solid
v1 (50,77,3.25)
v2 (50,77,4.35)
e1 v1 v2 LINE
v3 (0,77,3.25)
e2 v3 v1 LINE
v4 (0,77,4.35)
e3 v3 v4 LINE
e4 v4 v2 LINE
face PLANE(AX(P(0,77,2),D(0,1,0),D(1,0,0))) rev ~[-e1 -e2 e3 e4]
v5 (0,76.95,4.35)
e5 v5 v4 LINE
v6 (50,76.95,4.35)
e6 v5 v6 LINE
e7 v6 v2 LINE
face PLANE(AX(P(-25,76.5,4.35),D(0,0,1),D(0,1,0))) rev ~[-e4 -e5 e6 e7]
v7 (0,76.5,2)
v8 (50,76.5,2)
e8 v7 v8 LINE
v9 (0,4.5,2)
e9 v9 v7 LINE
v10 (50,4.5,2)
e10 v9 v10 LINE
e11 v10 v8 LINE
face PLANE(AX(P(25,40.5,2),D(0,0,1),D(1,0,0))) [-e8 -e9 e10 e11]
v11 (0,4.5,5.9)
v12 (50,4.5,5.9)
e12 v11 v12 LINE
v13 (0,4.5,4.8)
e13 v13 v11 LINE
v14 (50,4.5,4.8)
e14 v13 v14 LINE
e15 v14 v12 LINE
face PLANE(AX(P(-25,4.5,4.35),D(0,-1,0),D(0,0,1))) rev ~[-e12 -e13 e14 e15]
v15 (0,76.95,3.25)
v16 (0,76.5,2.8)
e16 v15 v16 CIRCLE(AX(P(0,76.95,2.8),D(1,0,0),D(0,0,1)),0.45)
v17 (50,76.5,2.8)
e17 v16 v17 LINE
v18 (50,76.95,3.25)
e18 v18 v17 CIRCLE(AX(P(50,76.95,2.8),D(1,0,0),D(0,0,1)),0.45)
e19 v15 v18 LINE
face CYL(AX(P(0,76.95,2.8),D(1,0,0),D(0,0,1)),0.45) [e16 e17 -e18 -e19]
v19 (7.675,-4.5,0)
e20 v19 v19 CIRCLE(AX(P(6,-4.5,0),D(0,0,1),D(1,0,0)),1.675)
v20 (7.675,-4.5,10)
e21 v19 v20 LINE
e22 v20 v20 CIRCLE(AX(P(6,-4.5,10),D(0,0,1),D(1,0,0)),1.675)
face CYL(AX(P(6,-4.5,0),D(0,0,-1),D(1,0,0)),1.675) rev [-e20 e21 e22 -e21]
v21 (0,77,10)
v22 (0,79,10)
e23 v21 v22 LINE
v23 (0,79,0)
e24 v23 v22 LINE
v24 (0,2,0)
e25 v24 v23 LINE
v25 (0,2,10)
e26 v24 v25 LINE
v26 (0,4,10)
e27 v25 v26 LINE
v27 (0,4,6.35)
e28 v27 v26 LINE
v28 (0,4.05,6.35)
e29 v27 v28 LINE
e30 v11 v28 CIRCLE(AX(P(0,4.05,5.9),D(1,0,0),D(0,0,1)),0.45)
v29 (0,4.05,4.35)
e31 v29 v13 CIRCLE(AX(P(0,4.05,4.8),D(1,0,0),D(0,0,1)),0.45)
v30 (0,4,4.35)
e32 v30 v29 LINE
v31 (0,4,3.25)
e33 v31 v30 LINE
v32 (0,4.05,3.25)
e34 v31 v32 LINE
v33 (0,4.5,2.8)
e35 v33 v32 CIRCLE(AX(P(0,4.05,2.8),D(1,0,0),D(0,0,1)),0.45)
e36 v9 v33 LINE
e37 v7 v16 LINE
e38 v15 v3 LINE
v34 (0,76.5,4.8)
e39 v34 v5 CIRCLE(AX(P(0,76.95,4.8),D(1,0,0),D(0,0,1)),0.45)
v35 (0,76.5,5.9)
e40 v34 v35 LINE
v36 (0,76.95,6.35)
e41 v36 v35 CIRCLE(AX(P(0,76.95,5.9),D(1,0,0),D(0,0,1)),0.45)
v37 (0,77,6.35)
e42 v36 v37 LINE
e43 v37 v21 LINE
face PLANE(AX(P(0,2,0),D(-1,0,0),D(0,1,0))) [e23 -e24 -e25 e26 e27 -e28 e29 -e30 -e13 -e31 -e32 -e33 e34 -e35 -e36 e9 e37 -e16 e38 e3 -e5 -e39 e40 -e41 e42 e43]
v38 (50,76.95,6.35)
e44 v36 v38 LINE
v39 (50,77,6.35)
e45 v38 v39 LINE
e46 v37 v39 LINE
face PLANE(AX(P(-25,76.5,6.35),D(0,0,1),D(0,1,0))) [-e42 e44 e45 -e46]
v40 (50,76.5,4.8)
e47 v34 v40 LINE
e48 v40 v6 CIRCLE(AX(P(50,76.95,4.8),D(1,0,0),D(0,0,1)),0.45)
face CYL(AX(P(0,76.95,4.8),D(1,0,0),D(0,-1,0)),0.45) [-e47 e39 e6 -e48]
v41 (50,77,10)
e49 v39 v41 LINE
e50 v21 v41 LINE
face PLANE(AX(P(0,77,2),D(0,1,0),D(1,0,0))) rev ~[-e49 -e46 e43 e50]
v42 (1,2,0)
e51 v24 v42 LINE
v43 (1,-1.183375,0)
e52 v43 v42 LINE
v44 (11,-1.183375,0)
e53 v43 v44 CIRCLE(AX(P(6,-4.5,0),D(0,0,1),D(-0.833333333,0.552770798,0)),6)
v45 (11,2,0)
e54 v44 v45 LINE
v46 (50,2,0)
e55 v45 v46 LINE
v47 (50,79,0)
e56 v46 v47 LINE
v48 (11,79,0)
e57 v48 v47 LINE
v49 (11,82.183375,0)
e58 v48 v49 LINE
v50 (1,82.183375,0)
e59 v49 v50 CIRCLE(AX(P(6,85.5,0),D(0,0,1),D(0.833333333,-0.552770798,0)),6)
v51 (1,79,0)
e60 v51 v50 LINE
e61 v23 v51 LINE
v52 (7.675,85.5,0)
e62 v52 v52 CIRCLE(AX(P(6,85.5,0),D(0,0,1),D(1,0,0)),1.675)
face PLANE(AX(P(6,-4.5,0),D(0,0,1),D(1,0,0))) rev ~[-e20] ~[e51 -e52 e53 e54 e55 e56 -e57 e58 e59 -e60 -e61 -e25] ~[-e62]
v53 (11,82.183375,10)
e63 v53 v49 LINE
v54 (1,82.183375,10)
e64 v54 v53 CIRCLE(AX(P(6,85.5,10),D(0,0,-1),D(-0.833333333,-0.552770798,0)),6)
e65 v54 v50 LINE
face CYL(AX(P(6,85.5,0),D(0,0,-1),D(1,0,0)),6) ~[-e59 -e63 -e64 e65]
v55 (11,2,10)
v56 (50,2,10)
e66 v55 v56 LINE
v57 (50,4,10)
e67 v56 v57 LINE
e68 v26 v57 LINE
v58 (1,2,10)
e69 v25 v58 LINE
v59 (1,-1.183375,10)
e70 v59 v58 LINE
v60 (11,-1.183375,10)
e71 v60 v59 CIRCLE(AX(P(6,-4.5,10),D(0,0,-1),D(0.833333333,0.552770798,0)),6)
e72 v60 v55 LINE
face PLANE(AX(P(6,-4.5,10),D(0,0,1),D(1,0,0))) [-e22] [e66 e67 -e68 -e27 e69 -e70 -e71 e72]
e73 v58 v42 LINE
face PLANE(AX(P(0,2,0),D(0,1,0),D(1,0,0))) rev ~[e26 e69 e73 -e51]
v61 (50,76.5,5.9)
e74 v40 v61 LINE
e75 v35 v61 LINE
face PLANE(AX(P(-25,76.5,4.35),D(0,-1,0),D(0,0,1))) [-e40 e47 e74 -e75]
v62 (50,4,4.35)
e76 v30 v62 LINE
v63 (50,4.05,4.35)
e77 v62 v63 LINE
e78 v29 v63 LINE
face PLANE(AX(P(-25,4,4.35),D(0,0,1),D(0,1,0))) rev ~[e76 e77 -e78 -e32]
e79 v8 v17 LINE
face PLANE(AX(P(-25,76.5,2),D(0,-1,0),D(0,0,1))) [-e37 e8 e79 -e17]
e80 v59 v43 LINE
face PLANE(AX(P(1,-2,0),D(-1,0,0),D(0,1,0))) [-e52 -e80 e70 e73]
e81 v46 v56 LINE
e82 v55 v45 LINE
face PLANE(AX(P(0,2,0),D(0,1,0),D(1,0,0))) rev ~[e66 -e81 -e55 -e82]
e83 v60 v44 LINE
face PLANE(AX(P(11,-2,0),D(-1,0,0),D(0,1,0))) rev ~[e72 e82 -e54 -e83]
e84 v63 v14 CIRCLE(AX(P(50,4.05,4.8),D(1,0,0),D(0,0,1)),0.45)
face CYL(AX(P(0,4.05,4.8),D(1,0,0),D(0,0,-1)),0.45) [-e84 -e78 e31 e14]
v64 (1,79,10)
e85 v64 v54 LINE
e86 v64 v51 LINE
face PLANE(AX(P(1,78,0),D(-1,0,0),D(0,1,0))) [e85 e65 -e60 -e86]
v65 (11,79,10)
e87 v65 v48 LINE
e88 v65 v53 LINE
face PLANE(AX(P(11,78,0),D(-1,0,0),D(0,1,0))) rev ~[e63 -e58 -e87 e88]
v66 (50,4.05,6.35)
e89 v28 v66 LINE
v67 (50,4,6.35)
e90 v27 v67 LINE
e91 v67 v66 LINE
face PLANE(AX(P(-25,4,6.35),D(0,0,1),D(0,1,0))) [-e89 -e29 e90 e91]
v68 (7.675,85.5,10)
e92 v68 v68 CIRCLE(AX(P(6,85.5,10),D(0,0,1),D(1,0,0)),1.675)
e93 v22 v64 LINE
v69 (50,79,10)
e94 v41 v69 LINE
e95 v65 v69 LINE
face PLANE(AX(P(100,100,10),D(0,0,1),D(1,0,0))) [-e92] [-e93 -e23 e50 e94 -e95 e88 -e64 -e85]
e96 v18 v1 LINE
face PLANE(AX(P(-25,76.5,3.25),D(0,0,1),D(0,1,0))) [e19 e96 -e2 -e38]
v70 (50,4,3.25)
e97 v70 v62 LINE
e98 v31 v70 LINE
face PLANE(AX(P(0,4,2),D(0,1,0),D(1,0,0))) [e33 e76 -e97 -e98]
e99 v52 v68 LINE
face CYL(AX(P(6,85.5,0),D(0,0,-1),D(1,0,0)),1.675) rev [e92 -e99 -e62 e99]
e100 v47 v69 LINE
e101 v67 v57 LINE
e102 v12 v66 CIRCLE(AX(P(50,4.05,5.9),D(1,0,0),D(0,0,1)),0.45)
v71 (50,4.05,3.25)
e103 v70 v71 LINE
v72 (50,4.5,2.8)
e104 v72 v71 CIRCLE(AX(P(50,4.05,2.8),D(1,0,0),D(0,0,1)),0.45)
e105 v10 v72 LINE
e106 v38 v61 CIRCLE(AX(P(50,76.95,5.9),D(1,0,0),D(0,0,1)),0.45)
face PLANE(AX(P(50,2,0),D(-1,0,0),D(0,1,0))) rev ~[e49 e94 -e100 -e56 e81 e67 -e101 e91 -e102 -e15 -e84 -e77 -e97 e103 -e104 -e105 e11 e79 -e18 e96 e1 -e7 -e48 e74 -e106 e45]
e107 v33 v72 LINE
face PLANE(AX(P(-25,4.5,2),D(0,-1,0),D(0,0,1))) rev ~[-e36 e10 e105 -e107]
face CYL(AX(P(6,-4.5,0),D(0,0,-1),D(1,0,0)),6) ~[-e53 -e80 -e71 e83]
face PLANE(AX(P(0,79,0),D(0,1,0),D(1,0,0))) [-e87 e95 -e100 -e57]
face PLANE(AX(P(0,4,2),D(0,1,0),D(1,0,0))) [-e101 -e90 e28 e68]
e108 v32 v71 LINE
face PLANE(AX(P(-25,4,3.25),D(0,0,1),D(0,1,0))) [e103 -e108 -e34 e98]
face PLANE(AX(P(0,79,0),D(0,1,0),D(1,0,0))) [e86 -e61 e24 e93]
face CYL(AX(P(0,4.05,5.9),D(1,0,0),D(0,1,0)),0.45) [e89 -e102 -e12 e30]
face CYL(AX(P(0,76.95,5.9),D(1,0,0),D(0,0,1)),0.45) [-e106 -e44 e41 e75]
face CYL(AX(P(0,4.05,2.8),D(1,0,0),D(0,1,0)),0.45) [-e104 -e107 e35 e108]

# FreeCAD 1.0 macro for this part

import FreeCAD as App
import Part
import Sketcher


def edges_at(feature, points):
    """Names of the edges that pass closest to the given points."""
    edges = feature.Shape.Edges
    near = lambda p: min(range(len(edges)), key=lambda i: edges[i].distToShape(Part.Vertex(*p))[0])
    return sorted({f"Edge{near(p) + 1}" for p in points})


def add_polygon(sketch, points):
    """Adds a closed chain of lines whose ends are joined by coincident constraints."""
    first, n = sketch.GeometryCount, len(points)
    for a, b in zip(points, points[1:] + points[:1]):
        sketch.addGeometry(Part.LineSegment(App.Vector(*a, 0), App.Vector(*b, 0)), False)
    for i in range(n):
        sketch.addConstraint(Sketcher.Constraint("Coincident", first + i, 2, first + (i + 1) % n, 1))

doc = App.newDocument("Part")
params = doc.addObject("Spreadsheet::Sheet", "Params")
for row, (alias, value) in enumerate([
    ("sketch1_width", "200 mm"),
    ("pad1_length", "20 mm"),
    ("sketch2_diameter", "12 mm"),
    ("sketch2_diameter2", "3.35 mm"),
    ("pad2_length", "10 mm"),
    ("sketch3_width", "73 mm"),
    ("sketch3_height", "18.85 mm"),
    ("pad3_length", "10 mm"),
    ("sketch4_height", "2 mm"),
    ("sketch4_width", "0.5 mm"),
    ("sketch4_height2", "1.25 mm"),
    ("pad4_length", "100 mm"),
    ("sketch5_width", "50 mm"),
    ("sketch5_height", "73 mm"),
    ("pad5_length", "18.85 mm"),
    ("sketch6_width", "50 mm"),
    ("sketch6_height", "77 mm"),
    ("pad6_length", "22.85 mm"),
    ("fillet_radius", "0.45 mm"),
    ("fillet2_radius", "1 mm"),
    ("sketch7_width", "10 mm"),
    ("sketch7_height", "5 mm"),
    ("pad7_length", "10 mm"),
    ("sketch8_diameter", "12 mm"),
    ("sketch8_diameter2", "3.35 mm"),
    ("pad8_length", "10 mm"),
    ("sketch9_width", "10 mm"),
    ("sketch9_height", "5 mm"),
    ("pad9_length", "10 mm"),
], start=1):
    params.set(f"A{row}", alias)
    params.set(f"B{row}", "=" + value)
    params.setAlias(f"B{row}", alias)

body = doc.addObject("PartDesign::Body", "Body")

# Sketch on XY plane
sketch1 = body.newObject("Sketcher::SketchObject", "Sketch")
sketch1.AttachmentSupport = (doc.getObject("XY_Plane"), [""])
sketch1.MapMode = "FlatFace"
sketch1.AttachmentOffset = App.Placement(App.Vector(0, 0, 10), App.Rotation())
add_polygon(sketch1, [(0, 200), (0, 0), (200, 0), (200, 200)])  # lines 0-3
sketch1.addConstraint(Sketcher.Constraint("Vertical", 0))
sketch1.addConstraint(Sketcher.Constraint("Horizontal", 1))
sketch1.addConstraint(Sketcher.Constraint("Vertical", 2))
sketch1.addConstraint(Sketcher.Constraint("Horizontal", 3))
sketch1.addConstraint(Sketcher.Constraint("Coincident", 0, 2, -1, 1))
sketch1.addConstraint(Sketcher.Constraint("Equal", 3, 0))
sketch1.addConstraint(Sketcher.Constraint("DistanceX", 1, 1, 1, 2, 200.0))
sketch1.setExpression("Constraints[10]", "Params.sketch1_width")
pad1 = body.newObject("PartDesign::Pad", "Pad")
pad1.Profile = sketch1
pad1.setExpression("Length", "Params.pad1_length")
body2 = doc.addObject("PartDesign::Body", "Body001")

# Sketch on XY plane
sketch2 = body2.newObject("Sketcher::SketchObject", "Sketch001")
sketch2.AttachmentSupport = (doc.getObject("XY_Plane001"), [""])
sketch2.MapMode = "FlatFace"
sketch2.addGeometry(Part.Circle(App.Vector(6, -4.5, 0), App.Vector(0, 0, 1), 6), False)
sketch2.addGeometry(Part.Circle(App.Vector(6, -4.5, 0), App.Vector(0, 0, 1), 1.7), False)
sketch2.addConstraint(Sketcher.Constraint("Coincident", 1, 3, 0, 3))
sketch2.addConstraint(Sketcher.Constraint("Diameter", 0, 12.0))
sketch2.addConstraint(Sketcher.Constraint("Diameter", 1, 3.35))
sketch2.addConstraint(Sketcher.Constraint("DistanceX", -1, 1, 0, 3, 6.0))
sketch2.addConstraint(Sketcher.Constraint("DistanceY", 0, 3, -1, 1, 4.5))
sketch2.setExpression("Constraints[1]", "Params.sketch2_diameter")
sketch2.setExpression("Constraints[2]", "Params.sketch2_diameter2")
pad2 = body2.newObject("PartDesign::Pad", "Pad001")
pad2.Profile = sketch2
pad2.setExpression("Length", "Params.pad2_length")
body3 = doc.addObject("PartDesign::Body", "Body002")

# Sketch on YZ plane
sketch3 = body3.newObject("Sketcher::SketchObject", "Sketch002")
sketch3.AttachmentSupport = (doc.getObject("YZ_Plane002"), [""])
sketch3.MapMode = "FlatFace"
add_polygon(sketch3, [(0, 19), (0, 0), (73, 0), (73, 19)])  # lines 0-3
sketch3.addConstraint(Sketcher.Constraint("Vertical", 0))
sketch3.addConstraint(Sketcher.Constraint("Horizontal", 1))
sketch3.addConstraint(Sketcher.Constraint("Vertical", 2))
sketch3.addConstraint(Sketcher.Constraint("Horizontal", 3))
sketch3.addConstraint(Sketcher.Constraint("Coincident", 0, 2, -1, 1))
sketch3.addConstraint(Sketcher.Constraint("DistanceX", 1, 1, 1, 2, 73.0))
sketch3.addConstraint(Sketcher.Constraint("DistanceY", 0, 2, 0, 1, 18.85))
sketch3.setExpression("Constraints[9]", "Params.sketch3_width")
sketch3.setExpression("Constraints[10]", "Params.sketch3_height")
pad3 = body3.newObject("PartDesign::Pad", "Pad002")
pad3.Profile = sketch3
pad3.setExpression("Length", "Params.pad3_length")

# Sketch on YZ plane
sketch4 = body3.newObject("Sketcher::SketchObject", "Sketch003")
sketch4.AttachmentSupport = (doc.getObject("YZ_Plane002"), [""])
sketch4.MapMode = "FlatFace"
add_polygon(sketch4, [(0, 1.2), (0, 0), (0.5, 0), (0.5, 1.2)])  # lines 0-3
add_polygon(sketch4, [(72.5, 1.2), (72.5, 0), (73, 0), (73, 1.2)])  # lines 4-7
add_polygon(sketch4, [(0, 4.3), (0, 2.4), (0.5, 2.4), (0.5, 4.3)])  # lines 8-11
add_polygon(sketch4, [(72.5, 4.3), (72.5, 2.4), (73, 2.4), (73, 4.3)])  # lines 12-15
sketch4.addConstraint(Sketcher.Constraint("Vertical", 0))
sketch4.addConstraint(Sketcher.Constraint("Horizontal", 1))
sketch4.addConstraint(Sketcher.Constraint("Vertical", 2))
sketch4.addConstraint(Sketcher.Constraint("Horizontal", 3))
sketch4.addConstraint(Sketcher.Constraint("Vertical", 4))
sketch4.addConstraint(Sketcher.Constraint("Horizontal", 5))
sketch4.addConstraint(Sketcher.Constraint("Vertical", 6))
sketch4.addConstraint(Sketcher.Constraint("Horizontal", 7))
sketch4.addConstraint(Sketcher.Constraint("Vertical", 8))
sketch4.addConstraint(Sketcher.Constraint("Horizontal", 9))
sketch4.addConstraint(Sketcher.Constraint("Vertical", 10))
sketch4.addConstraint(Sketcher.Constraint("Horizontal", 11))
sketch4.addConstraint(Sketcher.Constraint("Vertical", 12))
sketch4.addConstraint(Sketcher.Constraint("Horizontal", 13))
sketch4.addConstraint(Sketcher.Constraint("Vertical", 14))
sketch4.addConstraint(Sketcher.Constraint("Horizontal", 15))
sketch4.addConstraint(Sketcher.Constraint("Coincident", 0, 2, -1, 1))
sketch4.addConstraint(Sketcher.Constraint("PointOnObject", 4, 2, -1))
sketch4.addConstraint(Sketcher.Constraint("PointOnObject", 8, 2, -2))
sketch4.addConstraint(Sketcher.Constraint("Horizontal", 3, 2, 6, 2))
sketch4.addConstraint(Sketcher.Constraint("Horizontal", 9, 2, 12, 2))
sketch4.addConstraint(Sketcher.Constraint("Horizontal", 11, 2, 14, 2))
sketch4.addConstraint(Sketcher.Constraint("Vertical", 2, 2, 9, 2))
sketch4.addConstraint(Sketcher.Constraint("Vertical", 7, 2, 12, 2))
sketch4.addConstraint(Sketcher.Constraint("Vertical", 6, 2, 13, 2))
sketch4.addConstraint(Sketcher.Constraint("Equal", 3, 5))
sketch4.addConstraint(Sketcher.Constraint("DistanceY", 8, 2, 8, 1, 2.0))
sketch4.addConstraint(Sketcher.Constraint("DistanceX", 1, 1, 1, 2, 0.5))
sketch4.addConstraint(Sketcher.Constraint("DistanceX", -1, 1, 5, 2, 73.0))
sketch4.addConstraint(Sketcher.Constraint("DistanceY", 0, 2, 0, 1, 1.25))
sketch4.addConstraint(Sketcher.Constraint("DistanceY", 3, 2, 8, 2, 1.1))
sketch4.setExpression("Constraints[42]", "Params.sketch4_height")
sketch4.setExpression("Constraints[43]", "Params.sketch4_width")
sketch4.setExpression("Constraints[45]", "Params.sketch4_height2")
pad4 = body3.newObject("PartDesign::Pad", "Pad003")
pad4.Profile = sketch4
pad4.setExpression("Length", "Params.pad4_length")
body4 = doc.addObject("PartDesign::Body", "Body003")
doc.recompute()

body3.Placement = App.Placement(App.Vector(-25, 0, 0), App.Rotation(App.Vector(0, 0, 1), 0))
boolean = body4.newObject("PartDesign::Boolean", "Boolean")
boolean.Type = "Fuse"
boolean.addObjects([body3])
body5 = doc.addObject("PartDesign::Body", "Body004")

# Sketch on XY plane
sketch5 = body5.newObject("Sketcher::SketchObject", "Sketch004")
sketch5.AttachmentSupport = (doc.getObject("XY_Plane004"), [""])
sketch5.MapMode = "FlatFace"
add_polygon(sketch5, [(0, 73), (0, 0), (50, 0), (50, 73)])  # lines 0-3
sketch5.addConstraint(Sketcher.Constraint("Vertical", 0))
sketch5.addConstraint(Sketcher.Constraint("Horizontal", 1))
sketch5.addConstraint(Sketcher.Constraint("Vertical", 2))
sketch5.addConstraint(Sketcher.Constraint("Horizontal", 3))
sketch5.addConstraint(Sketcher.Constraint("Coincident", 0, 2, -1, 1))
sketch5.addConstraint(Sketcher.Constraint("DistanceX", 1, 1, 1, 2, 50.0))
sketch5.addConstraint(Sketcher.Constraint("DistanceY", 0, 2, 0, 1, 73.0))
sketch5.setExpression("Constraints[9]", "Params.sketch5_width")
sketch5.setExpression("Constraints[10]", "Params.sketch5_height")
pad5 = body5.newObject("PartDesign::Pad", "Pad004")
pad5.Profile = sketch5
pad5.setExpression("Length", "Params.pad5_length")
doc.recompute()

boolean2 = body5.newObject("PartDesign::Boolean", "Boolean001")
boolean2.Type = "Cut"
boolean2.addObjects([body4])
body6 = doc.addObject("PartDesign::Body", "Body005")
doc.recompute()

body5.Placement = App.Placement(App.Vector(0, 2, 2), App.Rotation(App.Vector(0, 0, 1), 0))
boolean3 = body6.newObject("PartDesign::Boolean", "Boolean002")
boolean3.Type = "Fuse"
boolean3.addObjects([body5])
body7 = doc.addObject("PartDesign::Body", "Body006")

# Sketch on XY plane
sketch6 = body7.newObject("Sketcher::SketchObject", "Sketch005")
sketch6.AttachmentSupport = (doc.getObject("XY_Plane006"), [""])
sketch6.MapMode = "FlatFace"
add_polygon(sketch6, [(0, 77), (0, 0), (50, 0), (50, 77)])  # lines 0-3
sketch6.addConstraint(Sketcher.Constraint("Vertical", 0))
sketch6.addConstraint(Sketcher.Constraint("Horizontal", 1))
sketch6.addConstraint(Sketcher.Constraint("Vertical", 2))
sketch6.addConstraint(Sketcher.Constraint("Horizontal", 3))
sketch6.addConstraint(Sketcher.Constraint("Coincident", 0, 2, -1, 1))
sketch6.addConstraint(Sketcher.Constraint("DistanceX", 1, 1, 1, 2, 50.0))
sketch6.addConstraint(Sketcher.Constraint("DistanceY", 0, 2, 0, 1, 77.0))
sketch6.setExpression("Constraints[9]", "Params.sketch6_width")
sketch6.setExpression("Constraints[10]", "Params.sketch6_height")
pad6 = body7.newObject("PartDesign::Pad", "Pad005")
pad6.Profile = sketch6
pad6.setExpression("Length", "Params.pad6_length")
doc.recompute()

boolean4 = body7.newObject("PartDesign::Boolean", "Boolean003")
boolean4.Type = "Cut"
boolean4.addObjects([body6])
doc.recompute()

fillet = body7.newObject("PartDesign::Fillet", "Fillet")
fillet.Base = (boolean4, edges_at(boolean4, [
    (25, 2.5, 3.25),
    (25, 74.5, 3.25),
    (25, 74.5, 4.35),
    (25, 74.5, 6.35),
    (25, 2.5, 6.35),
    (25, 2.5, 4.35),
]))
fillet.setExpression("Radius", "Params.fillet_radius")
body8 = doc.addObject("PartDesign::Body", "Body007")
body8.AllowCompound = True
doc.recompute()

body7.Placement = App.Placement(App.Vector(0, 2, 0), App.Rotation(App.Vector(0, 0, 1), 0))
boolean5 = body8.newObject("PartDesign::Boolean", "Boolean004")
boolean5.Type = "Fuse"
boolean5.addObjects([body7])
doc.recompute()

fillet2 = body8.newObject("PartDesign::Fillet", "Fillet001")
fillet2.Base = (boolean5, edges_at(boolean5, [(25, 79, 22.85), (25, 2, 22.85)]))
fillet2.setExpression("Radius", "Params.fillet2_radius")
doc.recompute()

boolean6 = body8.newObject("PartDesign::Boolean", "Boolean005")
boolean6.Type = "Fuse"
boolean6.addObjects([body2])
doc.recompute()

boolean7 = body8.newObject("PartDesign::Boolean", "Boolean006")
boolean7.Type = "Cut"
boolean7.addObjects([body])
body9 = doc.addObject("PartDesign::Body", "Body008")

# Sketch on XY plane
sketch7 = body9.newObject("Sketcher::SketchObject", "Sketch006")
sketch7.AttachmentSupport = (doc.getObject("XY_Plane008"), [""])
sketch7.MapMode = "FlatFace"
add_polygon(sketch7, [(1, 3), (1, -2), (11, -2), (11, 3)])  # lines 0-3
sketch7.addConstraint(Sketcher.Constraint("Vertical", 0))
sketch7.addConstraint(Sketcher.Constraint("Horizontal", 1))
sketch7.addConstraint(Sketcher.Constraint("Vertical", 2))
sketch7.addConstraint(Sketcher.Constraint("Horizontal", 3))
sketch7.addConstraint(Sketcher.Constraint("DistanceX", 1, 1, 1, 2, 10.0))
sketch7.addConstraint(Sketcher.Constraint("DistanceY", 0, 2, 0, 1, 5.0))
sketch7.addConstraint(Sketcher.Constraint("DistanceX", -1, 1, 0, 2, 1.0))
sketch7.addConstraint(Sketcher.Constraint("DistanceY", 0, 2, -1, 1, 2.0))
sketch7.setExpression("Constraints[8]", "Params.sketch7_width")
sketch7.setExpression("Constraints[9]", "Params.sketch7_height")
pad7 = body9.newObject("PartDesign::Pad", "Pad006")
pad7.Profile = sketch7
pad7.setExpression("Length", "Params.pad7_length")
doc.recompute()

boolean8 = body9.newObject("PartDesign::Boolean", "Boolean007")
boolean8.Type = "Fuse"
boolean8.addObjects([body8])
body10 = doc.addObject("PartDesign::Body", "Body009")

# Sketch on XY plane
sketch8 = body10.newObject("Sketcher::SketchObject", "Sketch007")
sketch8.AttachmentSupport = (doc.getObject("XY_Plane009"), [""])
sketch8.MapMode = "FlatFace"
sketch8.addGeometry(Part.Circle(App.Vector(6, 85.5, 0), App.Vector(0, 0, 1), 6), False)
sketch8.addGeometry(Part.Circle(App.Vector(6, 85.5, 0), App.Vector(0, 0, 1), 1.7), False)
sketch8.addConstraint(Sketcher.Constraint("Coincident", 1, 3, 0, 3))
sketch8.addConstraint(Sketcher.Constraint("Diameter", 0, 12.0))
sketch8.addConstraint(Sketcher.Constraint("Diameter", 1, 3.35))
sketch8.addConstraint(Sketcher.Constraint("DistanceX", -1, 1, 0, 3, 6.0))
sketch8.addConstraint(Sketcher.Constraint("DistanceY", -1, 1, 0, 3, 85.5))
sketch8.setExpression("Constraints[1]", "Params.sketch8_diameter")
sketch8.setExpression("Constraints[2]", "Params.sketch8_diameter2")
pad8 = body10.newObject("PartDesign::Pad", "Pad007")
pad8.Profile = sketch8
pad8.setExpression("Length", "Params.pad8_length")
body11 = doc.addObject("PartDesign::Body", "Body010")

# Sketch on XY plane
sketch9 = body11.newObject("Sketcher::SketchObject", "Sketch008")
sketch9.AttachmentSupport = (doc.getObject("XY_Plane010"), [""])
sketch9.MapMode = "FlatFace"
add_polygon(sketch9, [(1, 83), (1, 78), (11, 78), (11, 83)])  # lines 0-3
sketch9.addConstraint(Sketcher.Constraint("Vertical", 0))
sketch9.addConstraint(Sketcher.Constraint("Horizontal", 1))
sketch9.addConstraint(Sketcher.Constraint("Vertical", 2))
sketch9.addConstraint(Sketcher.Constraint("Horizontal", 3))
sketch9.addConstraint(Sketcher.Constraint("DistanceX", 1, 1, 1, 2, 10.0))
sketch9.addConstraint(Sketcher.Constraint("DistanceY", 0, 2, 0, 1, 5.0))
sketch9.addConstraint(Sketcher.Constraint("DistanceX", -1, 1, 0, 2, 1.0))
sketch9.addConstraint(Sketcher.Constraint("DistanceY", -1, 1, 0, 2, 78.0))
sketch9.setExpression("Constraints[8]", "Params.sketch9_width")
sketch9.setExpression("Constraints[9]", "Params.sketch9_height")
pad9 = body11.newObject("PartDesign::Pad", "Pad008")
pad9.Profile = sketch9
pad9.setExpression("Length", "Params.pad9_length")
doc.recompute()

boolean9 = body11.newObject("PartDesign::Boolean", "Boolean008")
boolean9.Type = "Fuse"
boolean9.addObjects([body10])
doc.recompute()

boolean10 = body11.newObject("PartDesign::Boolean", "Boolean009")
boolean10.Type = "Fuse"
boolean10.addObjects([body9])

doc.recompute()
